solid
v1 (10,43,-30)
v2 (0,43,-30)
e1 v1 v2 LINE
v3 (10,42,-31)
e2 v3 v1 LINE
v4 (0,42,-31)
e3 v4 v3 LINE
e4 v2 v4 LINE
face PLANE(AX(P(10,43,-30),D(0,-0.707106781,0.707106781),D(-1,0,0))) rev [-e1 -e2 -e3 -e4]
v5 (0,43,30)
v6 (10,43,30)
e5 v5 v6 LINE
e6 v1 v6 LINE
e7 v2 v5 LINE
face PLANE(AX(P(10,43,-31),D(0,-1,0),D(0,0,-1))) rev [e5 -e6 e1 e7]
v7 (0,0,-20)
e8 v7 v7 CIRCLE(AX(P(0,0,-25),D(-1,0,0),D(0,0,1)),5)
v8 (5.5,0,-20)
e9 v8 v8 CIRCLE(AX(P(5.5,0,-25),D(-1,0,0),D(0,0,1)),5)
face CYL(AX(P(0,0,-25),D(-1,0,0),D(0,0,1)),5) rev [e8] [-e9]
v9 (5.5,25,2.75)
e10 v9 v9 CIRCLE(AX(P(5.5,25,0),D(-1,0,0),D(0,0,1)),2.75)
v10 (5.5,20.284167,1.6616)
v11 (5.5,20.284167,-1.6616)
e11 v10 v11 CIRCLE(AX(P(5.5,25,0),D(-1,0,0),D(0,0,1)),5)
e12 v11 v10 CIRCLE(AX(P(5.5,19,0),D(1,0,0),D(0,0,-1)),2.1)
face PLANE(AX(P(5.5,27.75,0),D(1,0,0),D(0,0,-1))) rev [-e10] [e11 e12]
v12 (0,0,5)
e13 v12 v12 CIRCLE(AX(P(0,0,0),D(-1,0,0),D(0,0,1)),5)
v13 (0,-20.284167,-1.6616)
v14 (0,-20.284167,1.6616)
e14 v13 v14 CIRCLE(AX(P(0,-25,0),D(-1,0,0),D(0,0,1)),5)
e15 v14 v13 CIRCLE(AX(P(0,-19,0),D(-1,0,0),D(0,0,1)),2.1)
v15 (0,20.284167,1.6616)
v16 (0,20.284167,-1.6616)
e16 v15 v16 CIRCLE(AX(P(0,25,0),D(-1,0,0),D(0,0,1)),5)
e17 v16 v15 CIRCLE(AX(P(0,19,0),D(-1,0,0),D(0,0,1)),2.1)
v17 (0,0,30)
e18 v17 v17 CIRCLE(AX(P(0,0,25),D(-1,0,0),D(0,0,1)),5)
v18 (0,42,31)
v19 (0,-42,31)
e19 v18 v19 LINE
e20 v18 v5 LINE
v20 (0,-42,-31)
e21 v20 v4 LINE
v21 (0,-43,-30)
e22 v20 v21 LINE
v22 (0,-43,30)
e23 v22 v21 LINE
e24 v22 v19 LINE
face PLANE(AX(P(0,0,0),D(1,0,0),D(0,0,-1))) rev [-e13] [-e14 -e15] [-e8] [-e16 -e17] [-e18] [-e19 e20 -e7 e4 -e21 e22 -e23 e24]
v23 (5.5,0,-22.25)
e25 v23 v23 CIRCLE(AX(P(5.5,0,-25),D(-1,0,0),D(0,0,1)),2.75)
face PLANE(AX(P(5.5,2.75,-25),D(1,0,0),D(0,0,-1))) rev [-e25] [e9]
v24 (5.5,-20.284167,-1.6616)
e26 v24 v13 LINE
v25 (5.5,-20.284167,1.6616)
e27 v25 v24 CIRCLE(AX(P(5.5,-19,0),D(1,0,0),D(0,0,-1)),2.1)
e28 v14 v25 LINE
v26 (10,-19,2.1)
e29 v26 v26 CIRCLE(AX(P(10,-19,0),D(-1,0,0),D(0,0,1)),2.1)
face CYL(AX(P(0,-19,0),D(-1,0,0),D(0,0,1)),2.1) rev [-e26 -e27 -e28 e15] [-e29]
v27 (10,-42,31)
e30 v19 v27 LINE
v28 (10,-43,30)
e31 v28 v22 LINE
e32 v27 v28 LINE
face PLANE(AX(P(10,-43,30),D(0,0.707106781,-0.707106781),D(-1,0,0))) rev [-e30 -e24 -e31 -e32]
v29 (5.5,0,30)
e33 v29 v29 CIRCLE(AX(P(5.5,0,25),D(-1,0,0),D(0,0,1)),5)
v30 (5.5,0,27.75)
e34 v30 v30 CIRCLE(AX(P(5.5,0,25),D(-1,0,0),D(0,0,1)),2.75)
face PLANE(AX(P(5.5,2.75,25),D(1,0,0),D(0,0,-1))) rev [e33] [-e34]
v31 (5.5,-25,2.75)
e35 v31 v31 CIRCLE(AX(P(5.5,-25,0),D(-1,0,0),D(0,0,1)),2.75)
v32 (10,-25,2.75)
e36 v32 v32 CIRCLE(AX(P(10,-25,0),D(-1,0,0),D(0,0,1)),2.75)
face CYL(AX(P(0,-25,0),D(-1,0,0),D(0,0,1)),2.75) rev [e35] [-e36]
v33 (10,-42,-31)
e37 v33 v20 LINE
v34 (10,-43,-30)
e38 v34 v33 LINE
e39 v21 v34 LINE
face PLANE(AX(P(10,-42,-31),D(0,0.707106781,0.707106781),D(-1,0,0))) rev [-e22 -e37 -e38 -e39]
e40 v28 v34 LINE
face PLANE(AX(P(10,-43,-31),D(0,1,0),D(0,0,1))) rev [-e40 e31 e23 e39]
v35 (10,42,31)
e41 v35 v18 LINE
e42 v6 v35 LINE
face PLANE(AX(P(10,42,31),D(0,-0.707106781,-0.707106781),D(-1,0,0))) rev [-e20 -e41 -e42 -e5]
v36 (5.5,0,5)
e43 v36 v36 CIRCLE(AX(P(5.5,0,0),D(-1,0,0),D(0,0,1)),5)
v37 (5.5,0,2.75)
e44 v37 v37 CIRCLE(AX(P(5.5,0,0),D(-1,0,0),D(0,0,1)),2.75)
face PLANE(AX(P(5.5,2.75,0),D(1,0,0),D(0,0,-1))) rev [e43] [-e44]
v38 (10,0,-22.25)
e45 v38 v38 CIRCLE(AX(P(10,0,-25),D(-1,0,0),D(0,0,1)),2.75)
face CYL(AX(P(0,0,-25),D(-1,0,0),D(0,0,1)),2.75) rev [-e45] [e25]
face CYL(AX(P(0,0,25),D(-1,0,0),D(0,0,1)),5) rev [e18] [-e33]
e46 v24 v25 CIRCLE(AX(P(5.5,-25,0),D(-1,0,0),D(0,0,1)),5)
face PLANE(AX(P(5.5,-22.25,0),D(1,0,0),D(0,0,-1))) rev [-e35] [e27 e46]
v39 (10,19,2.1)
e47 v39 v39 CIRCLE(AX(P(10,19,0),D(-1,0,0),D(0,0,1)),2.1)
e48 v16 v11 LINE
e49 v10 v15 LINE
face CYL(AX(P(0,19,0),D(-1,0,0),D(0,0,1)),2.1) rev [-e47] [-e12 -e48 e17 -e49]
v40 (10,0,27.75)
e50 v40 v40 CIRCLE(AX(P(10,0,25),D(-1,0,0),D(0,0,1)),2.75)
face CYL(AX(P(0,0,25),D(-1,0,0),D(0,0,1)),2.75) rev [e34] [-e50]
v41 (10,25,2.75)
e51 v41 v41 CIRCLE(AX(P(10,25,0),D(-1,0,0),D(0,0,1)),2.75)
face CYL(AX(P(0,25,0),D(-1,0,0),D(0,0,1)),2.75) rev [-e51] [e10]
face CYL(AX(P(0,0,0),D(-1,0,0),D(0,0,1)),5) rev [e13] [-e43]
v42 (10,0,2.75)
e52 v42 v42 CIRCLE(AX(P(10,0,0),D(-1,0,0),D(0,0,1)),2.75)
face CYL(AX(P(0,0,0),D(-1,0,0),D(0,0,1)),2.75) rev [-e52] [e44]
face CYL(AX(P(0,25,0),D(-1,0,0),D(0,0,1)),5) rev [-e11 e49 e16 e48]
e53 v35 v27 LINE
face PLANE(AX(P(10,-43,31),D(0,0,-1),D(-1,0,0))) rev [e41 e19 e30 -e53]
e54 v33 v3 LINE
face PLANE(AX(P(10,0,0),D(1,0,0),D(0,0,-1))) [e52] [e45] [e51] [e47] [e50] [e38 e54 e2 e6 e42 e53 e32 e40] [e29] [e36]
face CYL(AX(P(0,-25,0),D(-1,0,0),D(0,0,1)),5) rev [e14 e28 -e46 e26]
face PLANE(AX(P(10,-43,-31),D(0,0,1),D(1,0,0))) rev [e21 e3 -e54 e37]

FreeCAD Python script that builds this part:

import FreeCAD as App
import Part
import Sketcher
from FreeCAD import Vector


def edges_at(feature, points):
    """Names of the edges that pass closest to the given points."""
    edges = feature.Shape.Edges
    near = lambda p: min(range(len(edges)), key=lambda i: edges[i].distToShape(Part.Vertex(*p))[0])
    return sorted({f"Edge{near(p) + 1}" for p in points})


def add_polygon(sketch, points):
    """Adds a closed chain of lines whose ends are joined by coincident constraints."""
    first, n = sketch.GeometryCount, len(points)
    for a, b in zip(points, points[1:] + points[:1]):
        sketch.addGeometry(Part.LineSegment(App.Vector(*a, 0), App.Vector(*b, 0)), False)
    for i in range(n):
        sketch.addConstraint(Sketcher.Constraint("Coincident", first + i, 2, first + (i + 1) % n, 1))

doc = App.newDocument("Part")
body = doc.addObject("PartDesign::Body", "Body")

sketch1 = body.newObject("Sketcher::SketchObject", "Sketch")
sketch1.AttachmentSupport = (doc.getObject("YZ_Plane"), [""])
sketch1.MapMode = "FlatFace"
add_polygon(sketch1, [(43, 31), (-43, 31), (-43, -31), (43, -31)])
sketch1.addConstraint([
    Sketcher.Constraint("Horizontal", 0),
    Sketcher.Constraint("Vertical", 1),
    Sketcher.Constraint("Horizontal", 2),
    Sketcher.Constraint("Vertical", 3),
    Sketcher.Constraint("Symmetric", 0, 2, 2, 2, -1, 1),
    Sketcher.Constraint("DistanceX", 0, 2, 0, 1, 86.0),
    Sketcher.Constraint("DistanceY", 1, 2, 1, 1, 62.0),
])
pad1 = body.newObject("PartDesign::Pad", "Pad")
pad1.Profile = sketch1
pad1.Length = 10
doc.recompute()

chamfer = body.newObject("PartDesign::Chamfer", "Chamfer")
chamfer.Base = (pad1, edges_at(pad1, [
    (5, 43, 31),
    (5, 43, -31),
    (5, -43, -31),
    (5, -43, 31),
]))
chamfer.Size = 1

sketch2 = body.newObject("Sketcher::SketchObject", "Sketch001")
sketch2.AttachmentSupport = (doc.getObject("YZ_Plane"), [""])
sketch2.MapMode = "FlatFace"
sketch2.addGeometry([
    Part.Circle(Vector(0, 25, 0), Vector(0, 0, 1), 2.75),
    Part.Circle(Vector(-25, 0, 0), Vector(0, 0, 1), 2.75),
    Part.Circle(Vector(0, -25, 0), Vector(0, 0, 1), 2.75),
    Part.Circle(Vector(25, 0, 0), Vector(0, 0, 1), 2.75),
    Part.Circle(Vector(0, 0, 0), Vector(0, 0, 1), 2.75),
], False)
sketch2.addConstraint([
    Sketcher.Constraint("Coincident", 4, 3, -1, 1),
    Sketcher.Constraint("Equal", 0, 1),
    Sketcher.Constraint("Equal", 1, 2),
    Sketcher.Constraint("Equal", 2, 3),
    Sketcher.Constraint("Equal", 3, 4),
    Sketcher.Constraint("Symmetric", 0, 3, 2, 3, -1, 1),
    Sketcher.Constraint("Symmetric", 1, 3, 3, 3, -1, 1),
    Sketcher.Constraint("PointOnObject", 0, 3, -2),
    Sketcher.Constraint("PointOnObject", 1, 3, -1),
    Sketcher.Constraint("Diameter", 0, 5.5),
    Sketcher.Constraint("DistanceY", -1, 1, 0, 3, 25.0),
    Sketcher.Constraint("DistanceX", 1, 3, -1, 1, 25.0),
])
doc.recompute()
hole = body.newObject("PartDesign::Hole", "Hole")
hole.Profile = sketch2
hole.ThreadType = "None"
hole.Diameter = 5.5
hole.DepthType = "ThroughAll"
hole.HoleCutType = "Counterbore"
hole.HoleCutDiameter = 10
hole.HoleCutDepth = 5.5
hole.Reversed = True

sketch3 = body.newObject("Sketcher::SketchObject", "Sketch002")
sketch3.AttachmentSupport = (doc.getObject("YZ_Plane"), [""])
sketch3.MapMode = "FlatFace"
sketch3.addGeometry([
    Part.Circle(Vector(19, 0, 0), Vector(0, 0, 1), 2.1),
    Part.Circle(Vector(-19, 0, 0), Vector(0, 0, 1), 2.1),
], False)
sketch3.addConstraint([
    Sketcher.Constraint("Equal", 0, 1),
    Sketcher.Constraint("Symmetric", 0, 3, 1, 3, -1, 1),
    Sketcher.Constraint("PointOnObject", 0, 3, -1),
    Sketcher.Constraint("Diameter", 0, 4.2),
    Sketcher.Constraint("DistanceX", -1, 1, 0, 3, 19.0),
])
doc.recompute()
hole2 = body.newObject("PartDesign::Hole", "Hole001")
hole2.Profile = sketch3
hole2.ThreadType = "None"
hole2.Diameter = 4.2
hole2.DepthType = "ThroughAll"
hole2.Reversed = True

doc.recompute()
